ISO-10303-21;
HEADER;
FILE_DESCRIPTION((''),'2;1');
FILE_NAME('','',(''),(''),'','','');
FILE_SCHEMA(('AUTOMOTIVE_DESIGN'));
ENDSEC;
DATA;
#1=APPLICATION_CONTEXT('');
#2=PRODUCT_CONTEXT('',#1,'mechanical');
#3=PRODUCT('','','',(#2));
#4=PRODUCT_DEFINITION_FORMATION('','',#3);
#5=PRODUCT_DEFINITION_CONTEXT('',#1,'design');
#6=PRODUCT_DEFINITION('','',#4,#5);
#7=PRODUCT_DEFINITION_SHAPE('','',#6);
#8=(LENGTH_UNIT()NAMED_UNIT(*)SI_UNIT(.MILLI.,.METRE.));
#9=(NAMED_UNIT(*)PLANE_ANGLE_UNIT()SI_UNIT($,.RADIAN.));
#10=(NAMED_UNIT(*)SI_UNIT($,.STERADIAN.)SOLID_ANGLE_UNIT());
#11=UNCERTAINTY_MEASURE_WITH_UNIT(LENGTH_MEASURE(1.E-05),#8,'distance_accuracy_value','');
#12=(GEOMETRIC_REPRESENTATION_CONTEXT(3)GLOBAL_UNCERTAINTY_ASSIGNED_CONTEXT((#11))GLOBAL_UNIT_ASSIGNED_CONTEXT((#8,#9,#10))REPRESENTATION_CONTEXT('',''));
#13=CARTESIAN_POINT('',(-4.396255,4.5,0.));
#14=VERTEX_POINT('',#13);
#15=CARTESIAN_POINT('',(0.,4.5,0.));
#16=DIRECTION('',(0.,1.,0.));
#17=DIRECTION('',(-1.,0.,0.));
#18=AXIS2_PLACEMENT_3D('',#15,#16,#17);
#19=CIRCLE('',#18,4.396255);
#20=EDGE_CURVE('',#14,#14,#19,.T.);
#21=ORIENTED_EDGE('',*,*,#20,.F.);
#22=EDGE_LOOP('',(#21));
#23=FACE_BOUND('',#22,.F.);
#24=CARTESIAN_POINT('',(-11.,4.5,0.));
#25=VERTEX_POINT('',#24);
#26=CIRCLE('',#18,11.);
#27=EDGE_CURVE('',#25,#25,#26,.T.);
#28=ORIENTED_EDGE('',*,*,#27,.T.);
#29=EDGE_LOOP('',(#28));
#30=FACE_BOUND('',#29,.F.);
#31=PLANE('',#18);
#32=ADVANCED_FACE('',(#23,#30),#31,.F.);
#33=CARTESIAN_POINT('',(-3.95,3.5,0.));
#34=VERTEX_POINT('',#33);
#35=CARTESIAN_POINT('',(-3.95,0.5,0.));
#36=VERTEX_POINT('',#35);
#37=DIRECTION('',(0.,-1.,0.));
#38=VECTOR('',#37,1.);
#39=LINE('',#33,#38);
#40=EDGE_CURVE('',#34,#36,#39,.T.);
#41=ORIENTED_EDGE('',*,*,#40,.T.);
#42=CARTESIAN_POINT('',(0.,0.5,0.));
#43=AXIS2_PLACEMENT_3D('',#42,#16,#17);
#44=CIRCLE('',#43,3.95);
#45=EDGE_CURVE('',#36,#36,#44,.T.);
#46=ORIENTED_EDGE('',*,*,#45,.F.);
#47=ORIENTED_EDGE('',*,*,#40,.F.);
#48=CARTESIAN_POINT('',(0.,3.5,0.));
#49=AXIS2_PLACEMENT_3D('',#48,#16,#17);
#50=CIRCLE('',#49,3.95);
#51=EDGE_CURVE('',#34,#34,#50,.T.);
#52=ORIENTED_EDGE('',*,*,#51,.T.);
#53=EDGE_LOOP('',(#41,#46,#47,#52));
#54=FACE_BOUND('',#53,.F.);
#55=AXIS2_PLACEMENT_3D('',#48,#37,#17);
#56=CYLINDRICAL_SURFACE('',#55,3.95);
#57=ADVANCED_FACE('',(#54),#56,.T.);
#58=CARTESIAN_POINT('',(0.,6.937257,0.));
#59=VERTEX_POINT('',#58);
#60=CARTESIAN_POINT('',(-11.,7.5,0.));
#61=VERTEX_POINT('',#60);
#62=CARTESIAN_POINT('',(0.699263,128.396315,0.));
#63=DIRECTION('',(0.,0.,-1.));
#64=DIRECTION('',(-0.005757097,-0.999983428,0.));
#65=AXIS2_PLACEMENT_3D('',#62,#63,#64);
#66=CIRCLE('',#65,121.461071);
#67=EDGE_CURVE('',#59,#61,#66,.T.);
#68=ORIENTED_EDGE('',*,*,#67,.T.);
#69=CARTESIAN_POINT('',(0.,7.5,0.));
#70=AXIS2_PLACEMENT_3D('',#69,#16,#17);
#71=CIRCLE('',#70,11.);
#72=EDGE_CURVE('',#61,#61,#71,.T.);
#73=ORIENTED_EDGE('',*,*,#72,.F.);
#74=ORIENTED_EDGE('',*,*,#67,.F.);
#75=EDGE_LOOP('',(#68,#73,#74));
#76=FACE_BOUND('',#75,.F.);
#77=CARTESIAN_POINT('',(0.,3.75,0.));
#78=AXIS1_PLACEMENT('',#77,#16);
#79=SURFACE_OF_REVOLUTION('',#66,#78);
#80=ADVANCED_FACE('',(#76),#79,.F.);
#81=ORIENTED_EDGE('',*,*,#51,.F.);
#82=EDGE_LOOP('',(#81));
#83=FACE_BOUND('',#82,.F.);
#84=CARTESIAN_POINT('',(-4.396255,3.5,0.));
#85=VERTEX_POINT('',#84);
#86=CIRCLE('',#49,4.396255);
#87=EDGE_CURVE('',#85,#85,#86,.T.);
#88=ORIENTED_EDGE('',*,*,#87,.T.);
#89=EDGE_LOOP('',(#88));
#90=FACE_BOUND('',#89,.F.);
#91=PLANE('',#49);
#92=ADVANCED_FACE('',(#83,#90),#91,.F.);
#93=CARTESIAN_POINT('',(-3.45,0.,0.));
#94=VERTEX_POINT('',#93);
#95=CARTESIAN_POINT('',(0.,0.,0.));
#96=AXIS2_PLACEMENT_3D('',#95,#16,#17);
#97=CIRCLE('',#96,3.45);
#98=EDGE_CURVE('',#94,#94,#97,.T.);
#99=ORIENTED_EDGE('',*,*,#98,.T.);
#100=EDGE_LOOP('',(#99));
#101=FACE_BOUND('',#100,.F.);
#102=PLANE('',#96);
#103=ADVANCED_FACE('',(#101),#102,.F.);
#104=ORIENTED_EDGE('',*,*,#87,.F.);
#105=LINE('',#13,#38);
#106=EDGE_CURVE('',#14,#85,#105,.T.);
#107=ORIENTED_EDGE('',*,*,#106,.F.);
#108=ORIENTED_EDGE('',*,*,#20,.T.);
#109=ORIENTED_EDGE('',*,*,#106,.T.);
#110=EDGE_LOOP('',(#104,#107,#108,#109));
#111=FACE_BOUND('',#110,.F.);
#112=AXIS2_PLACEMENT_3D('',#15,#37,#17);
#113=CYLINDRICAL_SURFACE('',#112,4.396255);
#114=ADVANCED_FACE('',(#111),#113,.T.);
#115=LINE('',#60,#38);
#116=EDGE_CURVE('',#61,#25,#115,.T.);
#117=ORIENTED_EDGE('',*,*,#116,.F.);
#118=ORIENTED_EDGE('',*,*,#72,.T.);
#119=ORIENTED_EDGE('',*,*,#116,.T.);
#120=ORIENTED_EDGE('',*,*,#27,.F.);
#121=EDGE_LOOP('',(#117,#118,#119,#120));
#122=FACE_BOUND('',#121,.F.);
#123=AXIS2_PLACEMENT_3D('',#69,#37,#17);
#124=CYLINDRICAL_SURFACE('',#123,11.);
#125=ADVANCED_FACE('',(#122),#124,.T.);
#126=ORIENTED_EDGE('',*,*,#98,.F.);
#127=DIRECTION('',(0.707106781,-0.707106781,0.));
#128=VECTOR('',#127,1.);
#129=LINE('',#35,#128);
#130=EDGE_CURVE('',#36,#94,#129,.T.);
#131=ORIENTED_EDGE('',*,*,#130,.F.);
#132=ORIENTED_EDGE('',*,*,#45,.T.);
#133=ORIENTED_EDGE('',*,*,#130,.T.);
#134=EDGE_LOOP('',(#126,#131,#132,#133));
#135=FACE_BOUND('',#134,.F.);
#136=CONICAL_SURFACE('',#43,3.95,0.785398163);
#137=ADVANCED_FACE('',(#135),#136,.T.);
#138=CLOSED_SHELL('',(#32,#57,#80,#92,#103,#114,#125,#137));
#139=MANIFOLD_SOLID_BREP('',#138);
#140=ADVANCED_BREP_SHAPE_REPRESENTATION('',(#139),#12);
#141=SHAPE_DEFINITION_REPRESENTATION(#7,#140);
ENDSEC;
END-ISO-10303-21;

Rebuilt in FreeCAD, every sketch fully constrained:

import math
import FreeCAD as App
import Part
import Sketcher


def edges_at(feature, points):
    """Names of the edges that pass closest to the given points."""
    edges = feature.Shape.Edges
    near = lambda p: min(range(len(edges)), key=lambda i: edges[i].distToShape(Part.Vertex(*p))[0])
    return sorted({f"Edge{near(p) + 1}" for p in points})

doc = App.newDocument("Part")
body = doc.addObject("PartDesign::Body", "Body")

sketch1 = body.newObject("Sketcher::SketchObject", "Sketch")
sketch1.AttachmentSupport = (doc.getObject("XY_Plane"), [""])
sketch1.MapMode = "FlatFace"
sketch1.addGeometry([
    Part.ArcOfCircle(Part.Circle(App.Vector(0.699263, 128.396315, 0), App.Vector(0, 0, 1), 121.461071), math.radians(-95.527362), math.radians(-90.329859)),
    Part.LineSegment(App.Vector(-11, 7.5, 0), App.Vector(-11, 4.5, 0)),
    Part.LineSegment(App.Vector(-11, 4.5, 0), App.Vector(-4.396255, 4.5, 0)),
    Part.LineSegment(App.Vector(-4.396255, 4.5, 0), App.Vector(-4.396255, 3.5, 0)),
    Part.LineSegment(App.Vector(-4.396255, 3.5, 0), App.Vector(-3.95, 3.5, 0)),
    Part.LineSegment(App.Vector(-3.95, 3.5, 0), App.Vector(-3.95, 0, 0)),
    Part.LineSegment(App.Vector(-3.95, 0, 0), App.Vector(0, 0, 0)),
    Part.LineSegment(App.Vector(0, 0, 0), App.Vector(0, 6.937257, 0)),
], False)
sketch1.addConstraint([
    Sketcher.Constraint("Coincident", 0, 1, 1, 1),
    Sketcher.Constraint("Coincident", 1, 2, 2, 1),
    Sketcher.Constraint("Coincident", 2, 2, 3, 1),
    Sketcher.Constraint("Coincident", 3, 2, 4, 1),
    Sketcher.Constraint("Coincident", 4, 2, 5, 1),
    Sketcher.Constraint("Coincident", 5, 2, 6, 1),
    Sketcher.Constraint("Coincident", 6, 2, 7, 1),
    Sketcher.Constraint("Coincident", 7, 2, 0, 2),
    Sketcher.Constraint("Vertical", 1),
    Sketcher.Constraint("Horizontal", 2),
    Sketcher.Constraint("Vertical", 3),
    Sketcher.Constraint("Horizontal", 4),
    Sketcher.Constraint("Vertical", 5),
    Sketcher.Constraint("Horizontal", 6),
    Sketcher.Constraint("Vertical", 7),
    Sketcher.Constraint("Coincident", 6, 2, -1, 1),
    Sketcher.Constraint("DistanceY", 1, 2, 1, 1, 3.0),
    Sketcher.Constraint("DistanceY", 3, 2, 3, 1, 1.0),
    Sketcher.Constraint("DistanceY", 5, 2, 5, 1, 3.5),
    Sketcher.Constraint("DistanceX", 0, 1, -1, 1, 11.0),
    Sketcher.Constraint("DistanceX", 6, 1, 6, 2, 3.95),
    Sketcher.Constraint("Radius", 0, 121.461071),
    Sketcher.Constraint("DistanceX", 2, 1, 2, 2, 6.603745),
    Sketcher.Constraint("DistanceY", 7, 1, 7, 2, 6.937257),
])
revolution = body.newObject("PartDesign::Revolution", "Revolution")
revolution.Profile = sketch1
revolution.ReferenceAxis = (sketch1, ["V_Axis"])
revolution.Angle = 360
doc.recompute()

chamfer = body.newObject("PartDesign::Chamfer", "Chamfer")
chamfer.Base = (revolution, edges_at(revolution, [(3.95, 0, 0)]))
chamfer.Size = 0.5

doc.recompute()
